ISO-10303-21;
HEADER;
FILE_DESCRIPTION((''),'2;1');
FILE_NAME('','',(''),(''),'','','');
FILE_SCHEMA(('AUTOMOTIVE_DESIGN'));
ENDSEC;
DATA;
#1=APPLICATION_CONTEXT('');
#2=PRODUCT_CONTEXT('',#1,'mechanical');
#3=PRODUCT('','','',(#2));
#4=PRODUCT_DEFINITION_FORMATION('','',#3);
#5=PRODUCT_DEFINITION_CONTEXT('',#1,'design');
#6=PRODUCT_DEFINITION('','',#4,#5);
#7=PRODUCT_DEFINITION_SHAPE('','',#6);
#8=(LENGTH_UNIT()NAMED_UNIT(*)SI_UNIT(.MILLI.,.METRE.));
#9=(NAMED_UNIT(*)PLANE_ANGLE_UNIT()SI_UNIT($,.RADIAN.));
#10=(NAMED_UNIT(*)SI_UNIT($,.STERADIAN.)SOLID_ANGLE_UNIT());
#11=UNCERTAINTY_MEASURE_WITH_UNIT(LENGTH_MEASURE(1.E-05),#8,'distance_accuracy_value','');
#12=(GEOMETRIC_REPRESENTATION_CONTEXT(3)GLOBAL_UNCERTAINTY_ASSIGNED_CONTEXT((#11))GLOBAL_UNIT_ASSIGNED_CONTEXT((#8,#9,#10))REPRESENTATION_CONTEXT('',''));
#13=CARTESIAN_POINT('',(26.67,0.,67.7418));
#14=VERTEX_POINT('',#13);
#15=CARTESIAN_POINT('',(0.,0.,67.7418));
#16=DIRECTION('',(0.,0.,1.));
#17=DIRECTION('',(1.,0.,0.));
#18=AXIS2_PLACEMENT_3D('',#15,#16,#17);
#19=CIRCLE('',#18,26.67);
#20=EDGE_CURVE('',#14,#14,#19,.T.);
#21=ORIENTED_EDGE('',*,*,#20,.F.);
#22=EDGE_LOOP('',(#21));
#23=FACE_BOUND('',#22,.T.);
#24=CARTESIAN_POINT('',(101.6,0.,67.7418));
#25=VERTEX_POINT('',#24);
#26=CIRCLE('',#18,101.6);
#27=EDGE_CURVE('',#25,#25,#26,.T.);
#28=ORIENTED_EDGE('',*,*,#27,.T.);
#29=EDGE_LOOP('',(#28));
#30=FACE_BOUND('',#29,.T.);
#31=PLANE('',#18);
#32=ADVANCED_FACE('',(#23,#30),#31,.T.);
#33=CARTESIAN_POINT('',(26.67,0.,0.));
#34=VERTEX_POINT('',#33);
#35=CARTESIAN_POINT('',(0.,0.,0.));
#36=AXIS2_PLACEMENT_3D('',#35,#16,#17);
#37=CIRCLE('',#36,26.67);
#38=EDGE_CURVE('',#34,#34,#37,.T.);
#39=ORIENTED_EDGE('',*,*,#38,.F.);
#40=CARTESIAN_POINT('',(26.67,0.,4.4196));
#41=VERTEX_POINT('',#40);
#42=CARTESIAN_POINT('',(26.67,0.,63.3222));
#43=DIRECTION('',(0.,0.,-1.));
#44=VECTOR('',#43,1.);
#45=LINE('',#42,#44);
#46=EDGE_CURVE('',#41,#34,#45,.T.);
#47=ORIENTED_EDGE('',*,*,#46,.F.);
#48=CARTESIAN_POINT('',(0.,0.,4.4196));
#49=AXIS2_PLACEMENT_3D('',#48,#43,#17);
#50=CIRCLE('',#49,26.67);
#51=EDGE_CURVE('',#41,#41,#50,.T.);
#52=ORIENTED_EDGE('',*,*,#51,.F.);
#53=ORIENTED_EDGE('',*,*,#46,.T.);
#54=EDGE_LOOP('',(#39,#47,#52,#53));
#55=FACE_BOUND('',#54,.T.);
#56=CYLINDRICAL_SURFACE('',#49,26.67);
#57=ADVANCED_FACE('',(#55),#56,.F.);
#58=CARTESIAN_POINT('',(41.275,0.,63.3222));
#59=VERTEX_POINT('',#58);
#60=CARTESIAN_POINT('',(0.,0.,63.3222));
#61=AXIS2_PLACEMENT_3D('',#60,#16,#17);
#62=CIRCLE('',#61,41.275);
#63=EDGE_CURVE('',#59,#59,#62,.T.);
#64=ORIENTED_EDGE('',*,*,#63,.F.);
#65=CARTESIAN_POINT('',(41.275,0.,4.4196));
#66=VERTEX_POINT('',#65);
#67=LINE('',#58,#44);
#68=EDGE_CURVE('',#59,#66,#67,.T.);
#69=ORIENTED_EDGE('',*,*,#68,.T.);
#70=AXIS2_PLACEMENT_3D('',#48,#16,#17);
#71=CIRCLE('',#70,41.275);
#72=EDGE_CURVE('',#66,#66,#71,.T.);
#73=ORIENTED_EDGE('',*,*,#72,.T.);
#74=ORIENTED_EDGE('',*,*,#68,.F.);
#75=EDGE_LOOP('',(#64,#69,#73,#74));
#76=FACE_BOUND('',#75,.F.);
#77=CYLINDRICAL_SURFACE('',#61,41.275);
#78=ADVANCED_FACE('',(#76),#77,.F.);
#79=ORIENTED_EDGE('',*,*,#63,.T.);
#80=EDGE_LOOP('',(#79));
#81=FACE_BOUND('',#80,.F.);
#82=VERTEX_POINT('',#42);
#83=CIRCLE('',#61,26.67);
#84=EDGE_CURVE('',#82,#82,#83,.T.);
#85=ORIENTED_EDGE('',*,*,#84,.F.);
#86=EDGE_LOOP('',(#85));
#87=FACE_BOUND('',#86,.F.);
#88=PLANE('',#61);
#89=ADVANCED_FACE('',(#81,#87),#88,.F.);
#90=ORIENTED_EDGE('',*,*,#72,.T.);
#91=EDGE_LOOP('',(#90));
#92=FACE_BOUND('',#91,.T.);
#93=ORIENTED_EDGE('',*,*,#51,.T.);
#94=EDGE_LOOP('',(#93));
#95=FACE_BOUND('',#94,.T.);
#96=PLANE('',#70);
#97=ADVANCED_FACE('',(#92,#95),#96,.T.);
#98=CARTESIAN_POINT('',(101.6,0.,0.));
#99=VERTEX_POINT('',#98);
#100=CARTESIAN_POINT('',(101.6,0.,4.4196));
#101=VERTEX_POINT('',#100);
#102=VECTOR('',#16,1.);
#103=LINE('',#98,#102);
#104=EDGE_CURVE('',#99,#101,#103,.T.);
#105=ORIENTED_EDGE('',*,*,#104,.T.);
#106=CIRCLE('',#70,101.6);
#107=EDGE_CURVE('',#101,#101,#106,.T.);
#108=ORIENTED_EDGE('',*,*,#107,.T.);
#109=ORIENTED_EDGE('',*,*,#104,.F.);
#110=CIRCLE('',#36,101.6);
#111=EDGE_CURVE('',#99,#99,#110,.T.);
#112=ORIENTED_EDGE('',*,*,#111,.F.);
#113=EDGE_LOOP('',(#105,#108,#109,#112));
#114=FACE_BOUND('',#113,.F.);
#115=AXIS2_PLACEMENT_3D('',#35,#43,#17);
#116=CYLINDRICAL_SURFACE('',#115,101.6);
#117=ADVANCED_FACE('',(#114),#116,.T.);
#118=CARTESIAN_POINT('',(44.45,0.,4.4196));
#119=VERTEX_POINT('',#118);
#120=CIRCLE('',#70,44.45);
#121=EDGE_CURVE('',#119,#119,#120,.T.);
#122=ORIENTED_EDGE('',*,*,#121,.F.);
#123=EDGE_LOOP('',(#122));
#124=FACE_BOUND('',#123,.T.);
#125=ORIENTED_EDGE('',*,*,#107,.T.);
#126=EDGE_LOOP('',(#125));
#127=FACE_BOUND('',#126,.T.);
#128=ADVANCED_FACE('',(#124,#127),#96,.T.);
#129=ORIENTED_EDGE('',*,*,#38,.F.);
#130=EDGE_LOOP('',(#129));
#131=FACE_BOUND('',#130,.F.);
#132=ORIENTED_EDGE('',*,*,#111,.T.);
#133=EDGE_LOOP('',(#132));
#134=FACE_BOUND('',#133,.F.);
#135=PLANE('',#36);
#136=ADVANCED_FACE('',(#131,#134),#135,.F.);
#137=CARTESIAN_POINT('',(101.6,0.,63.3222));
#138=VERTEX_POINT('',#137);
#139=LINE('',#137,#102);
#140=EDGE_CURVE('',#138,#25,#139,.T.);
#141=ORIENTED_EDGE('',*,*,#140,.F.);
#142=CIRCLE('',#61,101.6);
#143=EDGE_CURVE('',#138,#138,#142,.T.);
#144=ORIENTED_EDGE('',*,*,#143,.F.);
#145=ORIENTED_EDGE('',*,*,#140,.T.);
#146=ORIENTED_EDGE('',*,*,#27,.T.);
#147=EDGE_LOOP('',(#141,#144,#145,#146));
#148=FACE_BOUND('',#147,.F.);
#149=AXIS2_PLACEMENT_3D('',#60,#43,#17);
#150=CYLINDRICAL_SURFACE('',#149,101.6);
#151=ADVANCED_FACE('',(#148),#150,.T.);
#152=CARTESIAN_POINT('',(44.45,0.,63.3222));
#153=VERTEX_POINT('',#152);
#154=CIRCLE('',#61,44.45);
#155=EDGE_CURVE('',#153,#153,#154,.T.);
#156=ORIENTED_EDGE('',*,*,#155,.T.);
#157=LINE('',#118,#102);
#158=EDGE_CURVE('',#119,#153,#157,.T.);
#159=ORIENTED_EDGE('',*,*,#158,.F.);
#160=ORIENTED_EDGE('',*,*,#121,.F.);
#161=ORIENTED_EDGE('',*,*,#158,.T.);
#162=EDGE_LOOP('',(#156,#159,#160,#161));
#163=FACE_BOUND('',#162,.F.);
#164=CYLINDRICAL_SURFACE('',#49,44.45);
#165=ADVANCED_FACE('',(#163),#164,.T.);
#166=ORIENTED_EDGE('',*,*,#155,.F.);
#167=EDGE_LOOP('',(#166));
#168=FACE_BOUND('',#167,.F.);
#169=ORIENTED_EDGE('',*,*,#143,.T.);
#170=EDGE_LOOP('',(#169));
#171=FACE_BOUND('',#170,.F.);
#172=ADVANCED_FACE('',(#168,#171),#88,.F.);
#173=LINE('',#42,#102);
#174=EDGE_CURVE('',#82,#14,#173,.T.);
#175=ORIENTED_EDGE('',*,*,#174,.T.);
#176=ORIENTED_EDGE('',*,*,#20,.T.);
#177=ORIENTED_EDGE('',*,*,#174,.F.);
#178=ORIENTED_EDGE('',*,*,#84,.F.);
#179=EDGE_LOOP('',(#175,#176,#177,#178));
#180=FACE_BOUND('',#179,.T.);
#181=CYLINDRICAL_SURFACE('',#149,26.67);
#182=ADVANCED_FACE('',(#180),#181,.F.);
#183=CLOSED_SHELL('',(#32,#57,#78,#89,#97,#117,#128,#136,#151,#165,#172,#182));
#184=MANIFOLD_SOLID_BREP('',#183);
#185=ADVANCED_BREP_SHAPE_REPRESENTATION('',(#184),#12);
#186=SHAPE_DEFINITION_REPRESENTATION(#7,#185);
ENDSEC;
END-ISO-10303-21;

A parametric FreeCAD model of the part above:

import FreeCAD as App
import Part
import Sketcher
from FreeCAD import Vector
Q = App.Units.Quantity

doc = App.newDocument("Part")
params = doc.addObject("Spreadsheet::Sheet", "Params")
for row, (alias, value) in enumerate([
    ("sketch1_diameter", "8 in"),
    ("sketch1_diameter2", "2.1 in"),
    ("pad1_length", "0.174 in"),
    ("sketch2_diameter", "3.5 in"),
    ("sketch2_diameter2", "2.1 in"),
    ("pad2_length", "2.319 in"),
    ("sketch3_diameter", "3.25 in"),
    ("pocket1_length", "2.319 in"),
    ("sketch4_diameter", "8 in"),
    ("sketch4_diameter2", "2.1 in"),
    ("pad3_length", "0.174 in"),
], start=1):
    params.set(f"A{row}", alias)
    params.set(f"B{row}", "=" + value)
    params.setAlias(f"B{row}", alias)

body = doc.addObject("PartDesign::Body", "Body")

# Sketch on XY plane
sketch1 = body.newObject("Sketcher::SketchObject", "Sketch")
sketch1.AttachmentSupport = (doc.getObject("XY_Plane"), [""])
sketch1.MapMode = "FlatFace"
sketch1.addGeometry(Part.Circle(Vector(0, 0, 0), Vector(0, 0, 1), 101.6), False)
sketch1.addGeometry(Part.Circle(Vector(0, 0, 0), Vector(0, 0, 1), 26.67), False)
sketch1.addConstraint(Sketcher.Constraint("Coincident", 0, 3, -1, 1))
sketch1.addConstraint(Sketcher.Constraint("Coincident", 1, 3, -1, 1))
sketch1.addConstraint(Sketcher.Constraint("Diameter", 0, Q("8 in")))
sketch1.addConstraint(Sketcher.Constraint("Diameter", 1, Q("2.1 in")))
sketch1.setExpression("Constraints[2]", "Params.sketch1_diameter")
sketch1.setExpression("Constraints[3]", "Params.sketch1_diameter2")
pad1 = body.newObject("PartDesign::Pad", "Pad")
pad1.Profile = sketch1
pad1.setExpression("Length", "Params.pad1_length")

# Sketch on XY plane
sketch2 = body.newObject("Sketcher::SketchObject", "Sketch001")
sketch2.AttachmentSupport = (doc.getObject("XY_Plane"), [""])
sketch2.MapMode = "FlatFace"
sketch2.AttachmentOffset = App.Placement(Vector(0, 0, 0.174 * 25.4), App.Rotation())
sketch2.addGeometry(Part.Circle(Vector(0, 0, 0), Vector(0, 0, 1), 44.45), False)
sketch2.addGeometry(Part.Circle(Vector(0, 0, 0), Vector(0, 0, 1), 26.67), False)
sketch2.addConstraint(Sketcher.Constraint("Coincident", 0, 3, -1, 1))
sketch2.addConstraint(Sketcher.Constraint("Coincident", 1, 3, -1, 1))
sketch2.addConstraint(Sketcher.Constraint("Diameter", 0, Q("3.5 in")))
sketch2.addConstraint(Sketcher.Constraint("Diameter", 1, Q("2.1 in")))
sketch2.setExpression("Constraints[2]", "Params.sketch2_diameter")
sketch2.setExpression("Constraints[3]", "Params.sketch2_diameter2")
pad2 = body.newObject("PartDesign::Pad", "Pad001")
pad2.Profile = sketch2
pad2.setExpression("Length", "Params.pad2_length")

# Sketch on XY plane
sketch3 = body.newObject("Sketcher::SketchObject", "Sketch002")
sketch3.AttachmentSupport = (doc.getObject("XY_Plane"), [""])
sketch3.MapMode = "FlatFace"
sketch3.AttachmentOffset = App.Placement(Vector(0, 0, 2.493 * 25.4), App.Rotation())
sketch3.addGeometry(Part.Circle(Vector(0, 0, 0), Vector(0, 0, 1), 41.275), False)
sketch3.addConstraint(Sketcher.Constraint("Coincident", 0, 3, -1, 1))
sketch3.addConstraint(Sketcher.Constraint("Diameter", 0, Q("3.25 in")))
sketch3.setExpression("Constraints[1]", "Params.sketch3_diameter")
pocket1 = body.newObject("PartDesign::Pocket", "Pocket")
pocket1.Profile = sketch3
pocket1.setExpression("Length", "Params.pocket1_length")

# Sketch on XY plane
sketch4 = body.newObject("Sketcher::SketchObject", "Sketch003")
sketch4.AttachmentSupport = (doc.getObject("XY_Plane"), [""])
sketch4.MapMode = "FlatFace"
sketch4.AttachmentOffset = App.Placement(Vector(0, 0, 2.493 * 25.4), App.Rotation())
sketch4.addGeometry(Part.Circle(Vector(0, 0, 0), Vector(0, 0, 1), 101.6), False)
sketch4.addGeometry(Part.Circle(Vector(0, 0, 0), Vector(0, 0, 1), 26.67), False)
sketch4.addConstraint(Sketcher.Constraint("Coincident", 0, 3, -1, 1))
sketch4.addConstraint(Sketcher.Constraint("Coincident", 1, 3, -1, 1))
sketch4.addConstraint(Sketcher.Constraint("Diameter", 0, Q("8 in")))
sketch4.addConstraint(Sketcher.Constraint("Diameter", 1, Q("2.1 in")))
sketch4.setExpression("Constraints[2]", "Params.sketch4_diameter")
sketch4.setExpression("Constraints[3]", "Params.sketch4_diameter2")
pad3 = body.newObject("PartDesign::Pad", "Pad002")
pad3.Profile = sketch4
pad3.setExpression("Length", "Params.pad3_length")

doc.recompute()
